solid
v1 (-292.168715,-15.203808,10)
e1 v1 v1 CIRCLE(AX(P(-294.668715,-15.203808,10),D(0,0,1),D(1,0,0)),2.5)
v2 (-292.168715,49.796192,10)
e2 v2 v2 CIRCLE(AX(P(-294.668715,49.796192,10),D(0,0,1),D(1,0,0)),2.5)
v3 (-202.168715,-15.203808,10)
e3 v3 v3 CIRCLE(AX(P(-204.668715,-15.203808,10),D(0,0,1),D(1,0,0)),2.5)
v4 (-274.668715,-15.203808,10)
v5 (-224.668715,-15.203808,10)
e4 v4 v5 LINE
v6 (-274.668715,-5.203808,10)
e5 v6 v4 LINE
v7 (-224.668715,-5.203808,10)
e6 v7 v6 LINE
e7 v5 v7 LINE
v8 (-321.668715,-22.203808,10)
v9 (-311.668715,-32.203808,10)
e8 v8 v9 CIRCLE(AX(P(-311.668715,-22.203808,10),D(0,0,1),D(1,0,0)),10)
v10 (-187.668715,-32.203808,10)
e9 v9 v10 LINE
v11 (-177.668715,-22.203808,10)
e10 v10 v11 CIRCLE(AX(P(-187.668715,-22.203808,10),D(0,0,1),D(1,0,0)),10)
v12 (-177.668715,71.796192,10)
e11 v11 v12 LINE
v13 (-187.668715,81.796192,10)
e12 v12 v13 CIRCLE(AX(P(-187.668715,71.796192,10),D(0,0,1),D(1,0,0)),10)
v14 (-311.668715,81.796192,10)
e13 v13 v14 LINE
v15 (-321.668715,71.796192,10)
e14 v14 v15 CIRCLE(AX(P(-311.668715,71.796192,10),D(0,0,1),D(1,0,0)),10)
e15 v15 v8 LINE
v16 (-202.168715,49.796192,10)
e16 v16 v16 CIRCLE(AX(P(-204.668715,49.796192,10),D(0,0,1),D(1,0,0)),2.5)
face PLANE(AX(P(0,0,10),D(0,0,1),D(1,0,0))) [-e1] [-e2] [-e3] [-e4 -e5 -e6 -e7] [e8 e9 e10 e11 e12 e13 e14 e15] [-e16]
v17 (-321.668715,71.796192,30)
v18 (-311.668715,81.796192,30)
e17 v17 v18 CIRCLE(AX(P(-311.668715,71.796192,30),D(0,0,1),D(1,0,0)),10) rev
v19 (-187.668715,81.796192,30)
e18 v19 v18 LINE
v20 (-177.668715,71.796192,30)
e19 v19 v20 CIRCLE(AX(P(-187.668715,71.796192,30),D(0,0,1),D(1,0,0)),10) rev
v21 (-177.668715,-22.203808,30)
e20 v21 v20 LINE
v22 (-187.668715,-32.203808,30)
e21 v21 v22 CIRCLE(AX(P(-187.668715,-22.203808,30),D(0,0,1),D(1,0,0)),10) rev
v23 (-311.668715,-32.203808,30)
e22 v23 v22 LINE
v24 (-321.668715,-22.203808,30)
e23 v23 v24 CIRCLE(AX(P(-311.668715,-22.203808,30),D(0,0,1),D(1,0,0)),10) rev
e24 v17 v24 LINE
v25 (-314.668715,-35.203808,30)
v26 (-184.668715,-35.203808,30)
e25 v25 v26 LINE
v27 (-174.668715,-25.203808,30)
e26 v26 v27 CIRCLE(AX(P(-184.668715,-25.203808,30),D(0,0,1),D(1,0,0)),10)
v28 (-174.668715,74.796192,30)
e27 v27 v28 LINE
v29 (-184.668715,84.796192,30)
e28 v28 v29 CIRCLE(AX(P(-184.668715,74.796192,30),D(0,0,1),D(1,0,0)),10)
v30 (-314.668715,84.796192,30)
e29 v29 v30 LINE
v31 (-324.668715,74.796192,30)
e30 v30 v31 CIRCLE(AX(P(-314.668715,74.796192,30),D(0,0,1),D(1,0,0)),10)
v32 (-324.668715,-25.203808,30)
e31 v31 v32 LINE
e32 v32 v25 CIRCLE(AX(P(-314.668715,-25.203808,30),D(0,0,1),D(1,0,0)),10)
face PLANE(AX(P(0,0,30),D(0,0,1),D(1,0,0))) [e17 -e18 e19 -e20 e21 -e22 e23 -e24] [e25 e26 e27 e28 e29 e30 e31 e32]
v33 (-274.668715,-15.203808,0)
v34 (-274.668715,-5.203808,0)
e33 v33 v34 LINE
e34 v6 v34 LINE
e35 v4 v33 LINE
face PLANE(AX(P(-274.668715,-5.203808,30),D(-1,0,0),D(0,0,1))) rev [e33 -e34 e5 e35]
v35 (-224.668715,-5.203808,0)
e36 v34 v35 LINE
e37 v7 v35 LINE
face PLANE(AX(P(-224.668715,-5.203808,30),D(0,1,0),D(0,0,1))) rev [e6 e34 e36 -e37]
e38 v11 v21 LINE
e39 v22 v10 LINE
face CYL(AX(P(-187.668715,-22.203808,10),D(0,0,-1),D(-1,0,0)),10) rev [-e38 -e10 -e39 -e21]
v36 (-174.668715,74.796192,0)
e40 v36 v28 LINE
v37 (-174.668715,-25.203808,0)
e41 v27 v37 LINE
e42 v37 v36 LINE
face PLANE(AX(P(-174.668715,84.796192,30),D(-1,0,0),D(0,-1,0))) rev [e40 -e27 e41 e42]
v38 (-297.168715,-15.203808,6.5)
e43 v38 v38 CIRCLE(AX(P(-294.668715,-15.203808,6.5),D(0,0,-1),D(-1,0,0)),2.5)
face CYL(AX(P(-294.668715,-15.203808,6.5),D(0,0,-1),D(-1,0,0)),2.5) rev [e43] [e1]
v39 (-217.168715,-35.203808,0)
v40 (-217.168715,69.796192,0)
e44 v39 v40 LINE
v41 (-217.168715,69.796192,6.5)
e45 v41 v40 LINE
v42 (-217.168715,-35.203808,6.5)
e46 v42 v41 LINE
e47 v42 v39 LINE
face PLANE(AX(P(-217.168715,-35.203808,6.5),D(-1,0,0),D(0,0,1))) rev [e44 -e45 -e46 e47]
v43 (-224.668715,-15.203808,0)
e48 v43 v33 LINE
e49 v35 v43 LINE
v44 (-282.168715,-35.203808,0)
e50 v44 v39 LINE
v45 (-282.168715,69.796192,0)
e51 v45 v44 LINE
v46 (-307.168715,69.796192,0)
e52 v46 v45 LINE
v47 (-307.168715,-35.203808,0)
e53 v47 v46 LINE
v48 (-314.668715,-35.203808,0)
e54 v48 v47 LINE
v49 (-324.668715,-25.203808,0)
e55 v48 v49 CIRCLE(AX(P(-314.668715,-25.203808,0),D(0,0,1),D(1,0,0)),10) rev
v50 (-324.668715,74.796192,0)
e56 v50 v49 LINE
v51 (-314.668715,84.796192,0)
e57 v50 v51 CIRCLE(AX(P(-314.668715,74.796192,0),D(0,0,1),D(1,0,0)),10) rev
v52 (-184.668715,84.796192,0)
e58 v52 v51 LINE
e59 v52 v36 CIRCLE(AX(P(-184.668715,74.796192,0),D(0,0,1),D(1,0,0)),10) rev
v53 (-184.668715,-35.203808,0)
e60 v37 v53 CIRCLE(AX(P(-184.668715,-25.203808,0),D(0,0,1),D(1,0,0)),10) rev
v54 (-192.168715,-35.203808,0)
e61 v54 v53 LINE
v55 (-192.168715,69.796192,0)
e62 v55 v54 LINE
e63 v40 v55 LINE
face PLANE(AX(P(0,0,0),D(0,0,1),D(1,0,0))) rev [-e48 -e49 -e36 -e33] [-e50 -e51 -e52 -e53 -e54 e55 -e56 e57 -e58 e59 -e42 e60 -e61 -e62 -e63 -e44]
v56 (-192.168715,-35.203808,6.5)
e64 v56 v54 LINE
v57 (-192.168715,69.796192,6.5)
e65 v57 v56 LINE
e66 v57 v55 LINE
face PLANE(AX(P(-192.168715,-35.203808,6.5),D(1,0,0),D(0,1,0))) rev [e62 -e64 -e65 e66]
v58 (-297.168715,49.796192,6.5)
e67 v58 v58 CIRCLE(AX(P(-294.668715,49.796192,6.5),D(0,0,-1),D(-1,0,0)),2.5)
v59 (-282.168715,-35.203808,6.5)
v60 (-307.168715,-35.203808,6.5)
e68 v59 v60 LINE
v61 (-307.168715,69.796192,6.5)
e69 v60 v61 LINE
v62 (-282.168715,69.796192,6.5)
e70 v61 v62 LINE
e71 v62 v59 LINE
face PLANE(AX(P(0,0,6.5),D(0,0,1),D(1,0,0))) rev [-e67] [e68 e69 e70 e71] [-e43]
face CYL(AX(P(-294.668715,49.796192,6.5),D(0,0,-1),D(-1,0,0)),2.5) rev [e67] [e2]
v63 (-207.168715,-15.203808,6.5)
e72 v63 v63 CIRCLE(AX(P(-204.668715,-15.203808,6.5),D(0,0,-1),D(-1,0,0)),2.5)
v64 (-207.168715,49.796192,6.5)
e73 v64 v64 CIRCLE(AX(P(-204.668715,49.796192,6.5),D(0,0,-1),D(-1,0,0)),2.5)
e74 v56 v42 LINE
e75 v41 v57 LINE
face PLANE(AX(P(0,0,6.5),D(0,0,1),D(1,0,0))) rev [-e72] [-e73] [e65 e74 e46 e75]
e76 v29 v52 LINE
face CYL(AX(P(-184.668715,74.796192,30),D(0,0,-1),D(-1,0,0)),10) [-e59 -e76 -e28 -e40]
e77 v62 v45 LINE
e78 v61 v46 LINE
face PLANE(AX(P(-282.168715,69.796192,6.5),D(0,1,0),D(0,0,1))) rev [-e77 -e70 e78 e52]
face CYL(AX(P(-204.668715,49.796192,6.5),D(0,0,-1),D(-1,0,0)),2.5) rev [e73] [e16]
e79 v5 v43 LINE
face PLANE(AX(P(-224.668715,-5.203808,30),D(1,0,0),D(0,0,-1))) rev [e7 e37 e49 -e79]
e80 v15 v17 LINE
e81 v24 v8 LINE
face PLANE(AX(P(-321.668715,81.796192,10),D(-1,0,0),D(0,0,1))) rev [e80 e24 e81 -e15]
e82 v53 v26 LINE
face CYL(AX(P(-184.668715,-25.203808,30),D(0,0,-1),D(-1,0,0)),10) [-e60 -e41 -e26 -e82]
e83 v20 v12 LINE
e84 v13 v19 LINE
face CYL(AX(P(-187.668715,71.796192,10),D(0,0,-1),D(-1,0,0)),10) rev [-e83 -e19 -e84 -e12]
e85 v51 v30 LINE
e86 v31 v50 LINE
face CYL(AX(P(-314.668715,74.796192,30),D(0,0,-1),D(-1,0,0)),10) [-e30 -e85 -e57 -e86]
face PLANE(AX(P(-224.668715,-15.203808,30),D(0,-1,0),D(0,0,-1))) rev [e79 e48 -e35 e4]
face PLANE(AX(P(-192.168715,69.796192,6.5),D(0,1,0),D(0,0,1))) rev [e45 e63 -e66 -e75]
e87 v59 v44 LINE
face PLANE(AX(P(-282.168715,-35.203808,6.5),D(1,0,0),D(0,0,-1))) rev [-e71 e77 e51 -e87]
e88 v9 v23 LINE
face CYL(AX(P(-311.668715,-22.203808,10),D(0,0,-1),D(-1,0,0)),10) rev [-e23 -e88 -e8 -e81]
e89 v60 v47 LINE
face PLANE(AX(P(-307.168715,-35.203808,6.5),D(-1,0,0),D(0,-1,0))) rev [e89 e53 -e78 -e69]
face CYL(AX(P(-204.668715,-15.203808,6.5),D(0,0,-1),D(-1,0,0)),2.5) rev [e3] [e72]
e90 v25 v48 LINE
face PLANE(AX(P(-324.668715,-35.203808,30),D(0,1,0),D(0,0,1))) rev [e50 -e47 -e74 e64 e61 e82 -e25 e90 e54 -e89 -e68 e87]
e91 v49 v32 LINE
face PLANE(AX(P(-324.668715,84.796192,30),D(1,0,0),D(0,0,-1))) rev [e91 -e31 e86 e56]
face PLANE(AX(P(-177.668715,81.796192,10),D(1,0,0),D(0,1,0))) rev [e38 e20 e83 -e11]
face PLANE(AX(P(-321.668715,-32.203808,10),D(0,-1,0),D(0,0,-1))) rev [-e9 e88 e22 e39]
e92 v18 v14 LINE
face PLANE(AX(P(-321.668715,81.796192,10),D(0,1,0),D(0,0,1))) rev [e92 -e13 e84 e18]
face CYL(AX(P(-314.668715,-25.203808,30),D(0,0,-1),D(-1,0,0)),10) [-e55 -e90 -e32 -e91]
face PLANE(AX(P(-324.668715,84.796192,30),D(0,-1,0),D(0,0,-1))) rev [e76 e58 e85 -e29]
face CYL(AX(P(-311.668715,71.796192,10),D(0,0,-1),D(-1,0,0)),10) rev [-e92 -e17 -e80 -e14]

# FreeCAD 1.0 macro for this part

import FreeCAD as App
import Part
import Sketcher

V = App.Vector


def edges_at(feature, points):
    """Names of the edges that pass closest to the given points."""
    edges = feature.Shape.Edges
    near = lambda p: min(range(len(edges)), key=lambda i: edges[i].distToShape(Part.Vertex(*p))[0])
    return sorted({f"Edge{near(p) + 1}" for p in points})


def add_polygon(sketch, points):
    """Adds a closed chain of lines whose ends are joined by coincident constraints."""
    first, n = sketch.GeometryCount, len(points)
    for a, b in zip(points, points[1:] + points[:1]):
        sketch.addGeometry(Part.LineSegment(App.Vector(*a, 0), App.Vector(*b, 0)), False)
    for i in range(n):
        sketch.addConstraint(Sketcher.Constraint("Coincident", first + i, 2, first + (i + 1) % n, 1))

doc = App.newDocument("Part")
params = doc.addObject("Spreadsheet::Sheet", "Params")
for row, (alias, value) in enumerate([
    ("sketch1_width", "150 mm"),
    ("sketch1_height", "120 mm"),
    ("pad1_length", "30 mm"),
    ("sketch2_width", "25 mm"),
    ("sketch2_height", "105 mm"),
    ("pocket1_length", "6.5 mm"),
    ("sketch3_width", "144 mm"),
    ("sketch3_height", "114 mm"),
    ("pocket2_length", "20 mm"),
    ("fillet_radius", "10 mm"),
    ("sketch4_diameter", "5 mm"),
    ("hole_diameter", "5 mm"),
    ("hole_depth", "20 mm"),
    ("sketch5_width", "50 mm"),
    ("sketch5_height", "10 mm"),
], start=1):
    params.set(f"A{row}", alias)
    params.set(f"B{row}", "=" + value)
    params.setAlias(f"B{row}", alias)

body = doc.addObject("PartDesign::Body", "Body")

sketch1 = body.newObject("Sketcher::SketchObject", "Sketch")
sketch1.AttachmentSupport = (doc.getObject("XY_Plane"), [""])
sketch1.MapMode = "FlatFace"
add_polygon(sketch1, [(-325, 85), (-325, -35), (-175, -35), (-175, 85)])
sketch1.addConstraint([
    Sketcher.Constraint("Vertical", 0),
    Sketcher.Constraint("Horizontal", 1),
    Sketcher.Constraint("Vertical", 2),
    Sketcher.Constraint("Horizontal", 3),
    Sketcher.Constraint("DistanceX", 1, 1, 1, 2, 150.0),
    Sketcher.Constraint("DistanceY", 0, 2, 0, 1, 120.0),
    Sketcher.Constraint("DistanceX", 0, 2, -1, 1, 324.668715),
    Sketcher.Constraint("DistanceY", 0, 2, -1, 1, 35.203808),
])
sketch1.setExpression("Constraints[8]", "Params.sketch1_width")
sketch1.setExpression("Constraints[9]", "Params.sketch1_height")
pad1 = body.newObject("PartDesign::Pad", "Pad")
pad1.Profile = sketch1
pad1.setExpression("Length", "Params.pad1_length")

sketch2 = body.newObject("Sketcher::SketchObject", "Sketch001")
sketch2.AttachmentSupport = (doc.getObject("XY_Plane"), [""])
sketch2.MapMode = "FlatFace"
add_polygon(sketch2, [(-192, 70), (-192, -35), (-217, -35), (-217, 70)])
add_polygon(sketch2, [(-282, 70), (-282, -35), (-307, -35), (-307, 70)])
sketch2.addConstraint([
    Sketcher.Constraint("Vertical", 0),
    Sketcher.Constraint("Horizontal", 1),
    Sketcher.Constraint("Vertical", 2),
    Sketcher.Constraint("Horizontal", 3),
    Sketcher.Constraint("Vertical", 4),
    Sketcher.Constraint("Horizontal", 5),
    Sketcher.Constraint("Vertical", 6),
    Sketcher.Constraint("Horizontal", 7),
    Sketcher.Constraint("Horizontal", 1, 2, 4, 2),
    Sketcher.Constraint("Horizontal", 3, 2, 6, 2),
    Sketcher.Constraint("Equal", 3, 5),
    Sketcher.Constraint("DistanceX", 1, 2, 1, 1, 25.0),
    Sketcher.Constraint("DistanceY", 0, 2, 0, 1, 105.0),
    Sketcher.Constraint("DistanceX", 4, 2, 1, 2, 65.0),
    Sketcher.Constraint("DistanceX", 0, 2, -1, 1, 192.168715),
    Sketcher.Constraint("DistanceY", 0, 2, -1, 1, 35.203808),
])
sketch2.setExpression("Constraints[19]", "Params.sketch2_width")
sketch2.setExpression("Constraints[20]", "Params.sketch2_height")
pocket1 = body.newObject("PartDesign::Pocket", "Pocket")
pocket1.Profile = sketch2
pocket1.setExpression("Length", "Params.pocket1_length")
pocket1.Reversed = True

sketch3 = body.newObject("Sketcher::SketchObject", "Sketch002")
sketch3.AttachmentSupport = (doc.getObject("XY_Plane"), [""])
sketch3.MapMode = "FlatFace"
sketch3.AttachmentOffset = App.Placement(V(0, 0, 30), App.Rotation())
add_polygon(sketch3, [(-322, 82), (-322, -32), (-178, -32), (-178, 82)])
sketch3.addConstraint([
    Sketcher.Constraint("Vertical", 0),
    Sketcher.Constraint("Horizontal", 1),
    Sketcher.Constraint("Vertical", 2),
    Sketcher.Constraint("Horizontal", 3),
    Sketcher.Constraint("DistanceX", 1, 1, 1, 2, 144.0),
    Sketcher.Constraint("DistanceY", 0, 2, 0, 1, 114.0),
    Sketcher.Constraint("DistanceX", 0, 2, -1, 1, 321.668715),
    Sketcher.Constraint("DistanceY", 0, 2, -1, 1, 32.203808),
])
sketch3.setExpression("Constraints[8]", "Params.sketch3_width")
sketch3.setExpression("Constraints[9]", "Params.sketch3_height")
pocket2 = body.newObject("PartDesign::Pocket", "Pocket001")
pocket2.Profile = sketch3
pocket2.setExpression("Length", "Params.pocket2_length")
doc.recompute()

fillet = body.newObject("PartDesign::Fillet", "Fillet")
fillet.Base = (pocket2, edges_at(pocket2, [
    (-177.669, 81.796, 20),
    (-177.669, -32.204, 20),
    (-321.669, -32.204, 20),
    (-321.669, 81.796, 20),
    (-174.669, -35.204, 15),
    (-324.669, -35.204, 15),
    (-324.669, 84.796, 15),
    (-174.669, 84.796, 15),
]))
fillet.setExpression("Radius", "Params.fillet_radius")

sketch4 = body.newObject("Sketcher::SketchObject", "Sketch003")
sketch4.AttachmentSupport = (doc.getObject("XY_Plane"), [""])
sketch4.MapMode = "FlatFace"
sketch4.AttachmentOffset = App.Placement(V(0, 0, 6.5), App.Rotation())
sketch4.addGeometry([
    Part.Circle(V(-204.7, 49.8, 0), V(0, 0, 1), 2.5),
    Part.Circle(V(-204.7, -15.2, 0), V(0, 0, 1), 2.5),
    Part.Circle(V(-294.7, 49.8, 0), V(0, 0, 1), 2.5),
    Part.Circle(V(-294.7, -15.2, 0), V(0, 0, 1), 2.5),
], False)
sketch4.addConstraint([
    Sketcher.Constraint("Equal", 0, 1),
    Sketcher.Constraint("Equal", 1, 2),
    Sketcher.Constraint("Equal", 2, 3),
    Sketcher.Constraint("Horizontal", 0, 3, 2, 3),
    Sketcher.Constraint("Horizontal", 1, 3, 3, 3),
    Sketcher.Constraint("Vertical", 0, 3, 1, 3),
    Sketcher.Constraint("Vertical", 2, 3, 3, 3),
    Sketcher.Constraint("Diameter", 0, 5.0),
    Sketcher.Constraint("DistanceY", 1, 3, 0, 3, 65.0),
    Sketcher.Constraint("DistanceX", 2, 3, 0, 3, 90.0),
    Sketcher.Constraint("DistanceX", 0, 3, -1, 1, 204.668715),
    Sketcher.Constraint("DistanceY", -1, 1, 0, 3, 49.796192),
])
sketch4.setExpression("Constraints[7]", "Params.sketch4_diameter")
doc.recompute()
hole = body.newObject("PartDesign::Hole", "Hole")
hole.Profile = sketch4
hole.ThreadType = "None"
hole.setExpression("Diameter", "Params.hole_diameter")
hole.DepthType = "Dimension"
hole.setExpression("Depth", "Params.hole_depth")
hole.DrillPoint = "Angled"
hole.DrillPointAngle = 118
hole.Reversed = True

sketch5 = body.newObject("Sketcher::SketchObject", "Sketch004")
sketch5.AttachmentSupport = (doc.getObject("XY_Plane"), [""])
sketch5.MapMode = "FlatFace"
add_polygon(sketch5, [(-225, -5), (-225, -15), (-275, -15), (-275, -5)])
sketch5.addConstraint([
    Sketcher.Constraint("Vertical", 0),
    Sketcher.Constraint("Horizontal", 1),
    Sketcher.Constraint("Vertical", 2),
    Sketcher.Constraint("Horizontal", 3),
    Sketcher.Constraint("DistanceX", 1, 2, 1, 1, 50.0),
    Sketcher.Constraint("DistanceY", 0, 2, 0, 1, 10.0),
    Sketcher.Constraint("DistanceX", 0, 2, -1, 1, 224.668715),
    Sketcher.Constraint("DistanceY", 0, 2, -1, 1, 15.203808),
])
sketch5.setExpression("Constraints[8]", "Params.sketch5_width")
sketch5.setExpression("Constraints[9]", "Params.sketch5_height")
pocket3 = body.newObject("PartDesign::Pocket", "Pocket002")
pocket3.Profile = sketch5
pocket3.Type = "ThroughAll"
pocket3.Reversed = True

doc.recompute()
